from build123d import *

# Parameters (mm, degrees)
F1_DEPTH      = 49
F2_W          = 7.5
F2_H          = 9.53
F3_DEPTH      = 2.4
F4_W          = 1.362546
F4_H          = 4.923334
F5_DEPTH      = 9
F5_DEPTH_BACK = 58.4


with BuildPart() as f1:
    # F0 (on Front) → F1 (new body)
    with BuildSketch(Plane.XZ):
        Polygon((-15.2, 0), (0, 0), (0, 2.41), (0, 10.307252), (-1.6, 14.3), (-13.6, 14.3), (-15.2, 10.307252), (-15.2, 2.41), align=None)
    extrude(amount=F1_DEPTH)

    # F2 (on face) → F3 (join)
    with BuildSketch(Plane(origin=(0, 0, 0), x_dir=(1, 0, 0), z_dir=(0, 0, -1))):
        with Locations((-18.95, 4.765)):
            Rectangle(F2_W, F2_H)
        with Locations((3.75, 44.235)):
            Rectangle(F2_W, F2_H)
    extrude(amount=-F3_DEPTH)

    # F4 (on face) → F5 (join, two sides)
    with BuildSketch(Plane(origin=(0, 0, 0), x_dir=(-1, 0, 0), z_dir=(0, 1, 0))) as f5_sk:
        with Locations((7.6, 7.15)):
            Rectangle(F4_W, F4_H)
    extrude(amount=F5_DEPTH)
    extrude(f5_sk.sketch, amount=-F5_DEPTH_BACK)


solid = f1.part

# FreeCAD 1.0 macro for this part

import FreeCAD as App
import Part
import Sketcher
from FreeCAD import Vector
Q = App.Units.Quantity

doc = App.newDocument("Part")
body = doc.addObject("PartDesign::Body", "Body")

# Sketch on XZ plane
sketch1 = doc.addObject("Sketcher::SketchObject", "Sketch")
body.addObject(sketch1)
sketch1.AttachmentSupport = (doc.XZ_Plane, [""])
sketch1.MapMode = "FlatFace"
sketch1.addGeometry(Part.LineSegment(Vector(-15.2, 0, 0), Vector(0, 0, 0)), False)
sketch1.addGeometry(Part.LineSegment(Vector(0, 0, 0), Vector(0, 10.3, 0)), False)
sketch1.addGeometry(Part.LineSegment(Vector(0, 10.3, 0), Vector(-1.6, 14.3, 0)), False)
sketch1.addGeometry(Part.LineSegment(Vector(-1.6, 14.3, 0), Vector(-13.6, 14.3, 0)), False)
sketch1.addGeometry(Part.LineSegment(Vector(-13.6, 14.3, 0), Vector(-15.2, 10.3, 0)), False)
sketch1.addGeometry(Part.LineSegment(Vector(-15.2, 10.3, 0), Vector(-15.2, 0, 0)), False)
sketch1.addConstraint(Sketcher.Constraint("Coincident", 0, 2, 1, 1))
sketch1.addConstraint(Sketcher.Constraint("Coincident", 1, 2, 2, 1))
sketch1.addConstraint(Sketcher.Constraint("Coincident", 2, 2, 3, 1))
sketch1.addConstraint(Sketcher.Constraint("Coincident", 3, 2, 4, 1))
sketch1.addConstraint(Sketcher.Constraint("Coincident", 4, 2, 5, 1))
sketch1.addConstraint(Sketcher.Constraint("Coincident", 5, 2, 0, 1))
sketch1.addConstraint(Sketcher.Constraint("Horizontal", 0))
sketch1.addConstraint(Sketcher.Constraint("Vertical", 1))
sketch1.addConstraint(Sketcher.Constraint("Horizontal", 3))
sketch1.addConstraint(Sketcher.Constraint("Vertical", 5))
sketch1.addConstraint(Sketcher.Constraint("Coincident", 0, 2, -1, 1))
sketch1.addConstraint(Sketcher.Constraint("Horizontal", 1, 2, 4, 2))
sketch1.addConstraint(Sketcher.Constraint("Equal", 2, 4))
sketch1.addConstraint(Sketcher.Constraint("DistanceX", 3, 2, 3, 1, Q("12 mm")))
sketch1.addConstraint(Sketcher.Constraint("DistanceX", 0, 1, 0, 2, Q("15.2 mm")))
sketch1.addConstraint(Sketcher.Constraint("DistanceY", -1, 1, 2, 2, Q("14.3 mm")))
sketch1.addConstraint(Sketcher.Constraint("Distance", 2, Q("4.301399 mm")))
pad1 = doc.addObject("PartDesign::Pad", "Pad")
body.addObject(pad1)
pad1.Profile = sketch1
pad1.Length = 49

# Sketch on XY plane
sketch2 = doc.addObject("Sketcher::SketchObject", "Sketch001")
body.addObject(sketch2)
sketch2.AttachmentSupport = (doc.XY_Plane, [""])
sketch2.MapMode = "FlatFace"
sketch2.addGeometry(Part.LineSegment(Vector(-23, -10, 0), Vector(-23, 0, 0)), False)
sketch2.addGeometry(Part.LineSegment(Vector(-23, 0, 0), Vector(-15, 0, 0)), False)
sketch2.addGeometry(Part.LineSegment(Vector(-15, 0, 0), Vector(-15, -10, 0)), False)
sketch2.addGeometry(Part.LineSegment(Vector(-15, -10, 0), Vector(-23, -10, 0)), False)
sketch2.addGeometry(Part.LineSegment(Vector(0, -49, 0), Vector(0, -39, 0)), False)
sketch2.addGeometry(Part.LineSegment(Vector(0, -39, 0), Vector(8, -39, 0)), False)
sketch2.addGeometry(Part.LineSegment(Vector(8, -39, 0), Vector(8, -49, 0)), False)
sketch2.addGeometry(Part.LineSegment(Vector(8, -49, 0), Vector(0, -49, 0)), False)
sketch2.addConstraint(Sketcher.Constraint("Coincident", 0, 2, 1, 1))
sketch2.addConstraint(Sketcher.Constraint("Coincident", 1, 2, 2, 1))
sketch2.addConstraint(Sketcher.Constraint("Coincident", 2, 2, 3, 1))
sketch2.addConstraint(Sketcher.Constraint("Coincident", 3, 2, 0, 1))
sketch2.addConstraint(Sketcher.Constraint("Coincident", 4, 2, 5, 1))
sketch2.addConstraint(Sketcher.Constraint("Coincident", 5, 2, 6, 1))
sketch2.addConstraint(Sketcher.Constraint("Coincident", 6, 2, 7, 1))
sketch2.addConstraint(Sketcher.Constraint("Coincident", 7, 2, 4, 1))
sketch2.addConstraint(Sketcher.Constraint("Vertical", 0))
sketch2.addConstraint(Sketcher.Constraint("Horizontal", 1))
sketch2.addConstraint(Sketcher.Constraint("Vertical", 2))
sketch2.addConstraint(Sketcher.Constraint("Horizontal", 3))
sketch2.addConstraint(Sketcher.Constraint("Vertical", 4))
sketch2.addConstraint(Sketcher.Constraint("Horizontal", 5))
sketch2.addConstraint(Sketcher.Constraint("Vertical", 6))
sketch2.addConstraint(Sketcher.Constraint("Horizontal", 7))
sketch2.addConstraint(Sketcher.Constraint("PointOnObject", 0, 2, -1))
sketch2.addConstraint(Sketcher.Constraint("PointOnObject", 4, 2, -2))
sketch2.addConstraint(Sketcher.Constraint("Equal", 3, 5))
sketch2.addConstraint(Sketcher.Constraint("Equal", 2, 4))
sketch2.addConstraint(Sketcher.Constraint("DistanceX", 1, 1, 1, 2, Q("7.5 mm")))
sketch2.addConstraint(Sketcher.Constraint("DistanceY", 6, 2, -1, 1, Q("49 mm")))
sketch2.addConstraint(Sketcher.Constraint("DistanceY", 0, 1, 0, 2, Q("9.53 mm")))
sketch2.addConstraint(Sketcher.Constraint("DistanceX", 0, 2, -1, 1, Q("22.7 mm")))
pad2 = doc.addObject("PartDesign::Pad", "Pad001")
body.addObject(pad2)
pad2.Profile = sketch2
pad2.Length = 2.4

# Sketch on XZ plane
sketch3 = doc.addObject("Sketcher::SketchObject", "Sketch002")
body.addObject(sketch3)
sketch3.AttachmentSupport = (doc.XZ_Plane, [""])
sketch3.MapMode = "FlatFace"
sketch3.addGeometry(Part.LineSegment(Vector(-6.9, 9.6, 0), Vector(-6.9, 4.7, 0)), False)
sketch3.addGeometry(Part.LineSegment(Vector(-6.9, 4.7, 0), Vector(-8.3, 4.7, 0)), False)
sketch3.addGeometry(Part.LineSegment(Vector(-8.3, 4.7, 0), Vector(-8.3, 9.6, 0)), False)
sketch3.addGeometry(Part.LineSegment(Vector(-8.3, 9.6, 0), Vector(-6.9, 9.6, 0)), False)
sketch3.addConstraint(Sketcher.Constraint("Coincident", 0, 2, 1, 1))
sketch3.addConstraint(Sketcher.Constraint("Coincident", 1, 2, 2, 1))
sketch3.addConstraint(Sketcher.Constraint("Coincident", 2, 2, 3, 1))
sketch3.addConstraint(Sketcher.Constraint("Coincident", 3, 2, 0, 1))
sketch3.addConstraint(Sketcher.Constraint("Vertical", 0))
sketch3.addConstraint(Sketcher.Constraint("Horizontal", 1))
sketch3.addConstraint(Sketcher.Constraint("Vertical", 2))
sketch3.addConstraint(Sketcher.Constraint("Horizontal", 3))
sketch3.addConstraint(Sketcher.Constraint("DistanceX", 1, 2, 1, 1, Q("1.362546 mm")))
sketch3.addConstraint(Sketcher.Constraint("DistanceY", 0, 2, 0, 1, Q("4.923334 mm")))
sketch3.addConstraint(Sketcher.Constraint("DistanceX", 0, 2, -1, 1, Q("6.918727 mm")))
sketch3.addConstraint(Sketcher.Constraint("DistanceY", -1, 1, 0, 2, Q("4.688333 mm")))
pad3 = doc.addObject("PartDesign::Pad", "Pad002")
body.addObject(pad3)
pad3.Profile = sketch3
pad3.Type = "TwoLengths"
pad3.Length = 9
pad3.Length2 = 58.4
pad3.Reversed = True

doc.recompute()
